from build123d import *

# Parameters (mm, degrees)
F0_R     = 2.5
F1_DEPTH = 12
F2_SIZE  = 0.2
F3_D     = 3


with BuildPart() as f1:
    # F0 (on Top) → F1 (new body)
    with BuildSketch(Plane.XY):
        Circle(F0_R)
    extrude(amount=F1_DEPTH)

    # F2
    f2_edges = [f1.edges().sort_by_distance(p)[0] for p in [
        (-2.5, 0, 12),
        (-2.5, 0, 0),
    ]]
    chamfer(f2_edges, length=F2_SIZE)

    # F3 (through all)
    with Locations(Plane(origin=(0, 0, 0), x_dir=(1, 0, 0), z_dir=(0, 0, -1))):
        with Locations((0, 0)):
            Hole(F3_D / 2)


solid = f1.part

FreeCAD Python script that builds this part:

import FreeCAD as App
import Part
import Sketcher


def edges_at(feature, points):
    """Names of the edges that pass closest to the given points."""
    edges = feature.Shape.Edges
    near = lambda p: min(range(len(edges)), key=lambda i: edges[i].distToShape(Part.Vertex(*p))[0])
    return sorted({f"Edge{near(p) + 1}" for p in points})

doc = App.newDocument("Part")
body = doc.addObject("PartDesign::Body", "Body")

# Sketch on XY plane
sketch1 = doc.addObject("Sketcher::SketchObject", "Sketch")
body.addObject(sketch1)
sketch1.AttachmentSupport = (doc.XY_Plane, [""])
sketch1.MapMode = "FlatFace"
sketch1.addGeometry(Part.Circle(App.Vector(0, 0, 0), App.Vector(0, 0, 1), 2.5), False)
sketch1.addConstraint([
    Sketcher.Constraint("Coincident", 0, 3, -1, 1),
    Sketcher.Constraint("Diameter", 0, 5.0),
])
pad1 = doc.addObject("PartDesign::Pad", "Pad")
body.addObject(pad1)
pad1.Profile = sketch1
pad1.Length = 12
doc.recompute()

chamfer = doc.addObject("PartDesign::Chamfer", "Chamfer")
body.addObject(chamfer)
chamfer.Base = (pad1, edges_at(pad1, [(-2.5, 0, 12), (-2.5, 0, 0)]))
chamfer.Size = 0.2

# Sketch on XY plane
sketch2 = doc.addObject("Sketcher::SketchObject", "Sketch001")
body.addObject(sketch2)
sketch2.AttachmentSupport = (doc.XY_Plane, [""])
sketch2.MapMode = "FlatFace"
sketch2.addGeometry(Part.Circle(App.Vector(0, 0, 0), App.Vector(0, 0, 1), 1.5), False)
sketch2.addConstraint([
    Sketcher.Constraint("Coincident", 0, 3, -1, 1),
    Sketcher.Constraint("Diameter", 0, 3.0),
])
doc.recompute()
hole = doc.addObject("PartDesign::Hole", "Hole")
body.addObject(hole)
hole.Profile = sketch2
hole.ThreadType = "None"
hole.Diameter = 3
hole.DepthType = "ThroughAll"
hole.Reversed = True

doc.recompute()
